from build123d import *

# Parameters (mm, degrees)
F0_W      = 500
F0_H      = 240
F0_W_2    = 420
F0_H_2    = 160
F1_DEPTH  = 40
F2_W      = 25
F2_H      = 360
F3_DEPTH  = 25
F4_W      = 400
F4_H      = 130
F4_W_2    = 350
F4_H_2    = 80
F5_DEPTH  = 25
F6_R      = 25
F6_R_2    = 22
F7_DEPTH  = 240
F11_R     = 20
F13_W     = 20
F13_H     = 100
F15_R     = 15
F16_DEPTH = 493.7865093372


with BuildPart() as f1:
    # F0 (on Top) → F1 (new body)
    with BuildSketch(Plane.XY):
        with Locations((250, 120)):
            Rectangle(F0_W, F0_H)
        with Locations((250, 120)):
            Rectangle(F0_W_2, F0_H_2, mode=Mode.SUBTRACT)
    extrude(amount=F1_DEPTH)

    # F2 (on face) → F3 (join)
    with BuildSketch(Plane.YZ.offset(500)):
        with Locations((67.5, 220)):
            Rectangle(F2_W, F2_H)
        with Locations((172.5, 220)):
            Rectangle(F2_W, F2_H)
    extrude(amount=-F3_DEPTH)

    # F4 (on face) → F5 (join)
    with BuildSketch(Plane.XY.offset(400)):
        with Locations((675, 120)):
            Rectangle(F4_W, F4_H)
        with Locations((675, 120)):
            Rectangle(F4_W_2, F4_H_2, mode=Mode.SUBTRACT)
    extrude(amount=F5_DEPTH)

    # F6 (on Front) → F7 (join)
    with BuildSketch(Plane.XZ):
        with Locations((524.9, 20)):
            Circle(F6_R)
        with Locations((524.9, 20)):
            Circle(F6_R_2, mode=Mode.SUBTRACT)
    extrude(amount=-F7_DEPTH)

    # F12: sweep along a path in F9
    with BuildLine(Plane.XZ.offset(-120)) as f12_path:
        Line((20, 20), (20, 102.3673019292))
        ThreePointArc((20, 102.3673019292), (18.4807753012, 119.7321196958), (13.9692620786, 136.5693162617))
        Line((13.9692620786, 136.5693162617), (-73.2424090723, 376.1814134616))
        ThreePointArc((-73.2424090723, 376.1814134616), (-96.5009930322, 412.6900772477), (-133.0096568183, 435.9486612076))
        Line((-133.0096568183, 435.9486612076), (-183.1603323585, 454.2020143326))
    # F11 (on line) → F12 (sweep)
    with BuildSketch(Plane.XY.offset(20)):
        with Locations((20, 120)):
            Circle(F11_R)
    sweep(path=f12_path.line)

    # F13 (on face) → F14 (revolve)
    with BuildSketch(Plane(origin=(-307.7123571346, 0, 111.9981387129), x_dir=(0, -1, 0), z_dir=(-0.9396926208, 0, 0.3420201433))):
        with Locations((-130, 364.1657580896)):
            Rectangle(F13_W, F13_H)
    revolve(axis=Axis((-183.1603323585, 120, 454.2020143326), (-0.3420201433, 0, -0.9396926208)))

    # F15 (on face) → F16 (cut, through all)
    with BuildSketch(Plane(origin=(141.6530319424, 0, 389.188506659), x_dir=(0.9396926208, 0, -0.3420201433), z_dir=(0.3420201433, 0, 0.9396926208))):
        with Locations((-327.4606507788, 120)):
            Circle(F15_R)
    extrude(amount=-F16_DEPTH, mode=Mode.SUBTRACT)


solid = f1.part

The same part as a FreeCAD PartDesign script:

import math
import FreeCAD as App
import Part
import Sketcher
from FreeCAD import Vector
Q = App.Units.Quantity

doc = App.newDocument("Part")
body = doc.addObject("PartDesign::Body", "Body")

sketch1 = doc.addObject("Sketcher::SketchObject", "Sketch")
body.addObject(sketch1)
sketch1.AttachmentSupport = (doc.XY_Plane, [""])
sketch1.MapMode = "FlatFace"
sketch1.addGeometry(Part.LineSegment(Vector(0, 240, 0), Vector(0, 0, 0)), False)
sketch1.addGeometry(Part.LineSegment(Vector(0, 0, 0), Vector(500, 0, 0)), False)
sketch1.addGeometry(Part.LineSegment(Vector(500, 0, 0), Vector(500, 240, 0)), False)
sketch1.addGeometry(Part.LineSegment(Vector(500, 240, 0), Vector(0, 240, 0)), False)
sketch1.addGeometry(Part.LineSegment(Vector(460, 40, 0), Vector(40, 40, 0)), False)
sketch1.addGeometry(Part.LineSegment(Vector(40, 40, 0), Vector(40, 200, 0)), False)
sketch1.addGeometry(Part.LineSegment(Vector(40, 200, 0), Vector(460, 200, 0)), False)
sketch1.addGeometry(Part.LineSegment(Vector(460, 200, 0), Vector(460, 40, 0)), False)
sketch1.addConstraint(Sketcher.Constraint("Coincident", 0, 2, 1, 1))
sketch1.addConstraint(Sketcher.Constraint("Coincident", 1, 2, 2, 1))
sketch1.addConstraint(Sketcher.Constraint("Coincident", 2, 2, 3, 1))
sketch1.addConstraint(Sketcher.Constraint("Coincident", 3, 2, 0, 1))
sketch1.addConstraint(Sketcher.Constraint("Coincident", 4, 2, 5, 1))
sketch1.addConstraint(Sketcher.Constraint("Coincident", 5, 2, 6, 1))
sketch1.addConstraint(Sketcher.Constraint("Coincident", 6, 2, 7, 1))
sketch1.addConstraint(Sketcher.Constraint("Coincident", 7, 2, 4, 1))
sketch1.addConstraint(Sketcher.Constraint("Vertical", 0))
sketch1.addConstraint(Sketcher.Constraint("Horizontal", 1))
sketch1.addConstraint(Sketcher.Constraint("Vertical", 2))
sketch1.addConstraint(Sketcher.Constraint("Horizontal", 3))
sketch1.addConstraint(Sketcher.Constraint("Horizontal", 4))
sketch1.addConstraint(Sketcher.Constraint("Vertical", 5))
sketch1.addConstraint(Sketcher.Constraint("Horizontal", 6))
sketch1.addConstraint(Sketcher.Constraint("Vertical", 7))
sketch1.addConstraint(Sketcher.Constraint("Coincident", 0, 2, -1, 1))
sketch1.addConstraint(Sketcher.Constraint("DistanceX", 1, 1, 1, 2, Q("500 mm")))
sketch1.addConstraint(Sketcher.Constraint("DistanceX", 4, 2, 4, 1, Q("420 mm")))
sketch1.addConstraint(Sketcher.Constraint("DistanceY", 0, 2, 0, 1, Q("240 mm")))
sketch1.addConstraint(Sketcher.Constraint("DistanceY", 5, 1, 5, 2, Q("160 mm")))
sketch1.addConstraint(Sketcher.Constraint("DistanceX", -1, 1, 4, 2, Q("40 mm")))
sketch1.addConstraint(Sketcher.Constraint("DistanceY", -1, 1, 4, 2, Q("40 mm")))
pad1 = doc.addObject("PartDesign::Pad", "Pad")
body.addObject(pad1)
pad1.Profile = sketch1
pad1.Length = 40

sketch2 = doc.addObject("Sketcher::SketchObject", "Sketch001")
body.addObject(sketch2)
sketch2.AttachmentSupport = (doc.YZ_Plane, [""])
sketch2.MapMode = "FlatFace"
sketch2.AttachmentOffset = App.Placement(Vector(0, 0, 500), App.Rotation())
sketch2.addGeometry(Part.LineSegment(Vector(55, 400, 0), Vector(55, 40, 0)), False)
sketch2.addGeometry(Part.LineSegment(Vector(55, 40, 0), Vector(80, 40, 0)), False)
sketch2.addGeometry(Part.LineSegment(Vector(80, 40, 0), Vector(80, 400, 0)), False)
sketch2.addGeometry(Part.LineSegment(Vector(80, 400, 0), Vector(55, 400, 0)), False)
sketch2.addGeometry(Part.LineSegment(Vector(160, 400, 0), Vector(160, 40, 0)), False)
sketch2.addGeometry(Part.LineSegment(Vector(160, 40, 0), Vector(185, 40, 0)), False)
sketch2.addGeometry(Part.LineSegment(Vector(185, 40, 0), Vector(185, 400, 0)), False)
sketch2.addGeometry(Part.LineSegment(Vector(185, 400, 0), Vector(160, 400, 0)), False)
sketch2.addConstraint(Sketcher.Constraint("Coincident", 0, 2, 1, 1))
sketch2.addConstraint(Sketcher.Constraint("Coincident", 1, 2, 2, 1))
sketch2.addConstraint(Sketcher.Constraint("Coincident", 2, 2, 3, 1))
sketch2.addConstraint(Sketcher.Constraint("Coincident", 3, 2, 0, 1))
sketch2.addConstraint(Sketcher.Constraint("Coincident", 4, 2, 5, 1))
sketch2.addConstraint(Sketcher.Constraint("Coincident", 5, 2, 6, 1))
sketch2.addConstraint(Sketcher.Constraint("Coincident", 6, 2, 7, 1))
sketch2.addConstraint(Sketcher.Constraint("Coincident", 7, 2, 4, 1))
sketch2.addConstraint(Sketcher.Constraint("Vertical", 0))
sketch2.addConstraint(Sketcher.Constraint("Horizontal", 1))
sketch2.addConstraint(Sketcher.Constraint("Vertical", 2))
sketch2.addConstraint(Sketcher.Constraint("Horizontal", 3))
sketch2.addConstraint(Sketcher.Constraint("Vertical", 4))
sketch2.addConstraint(Sketcher.Constraint("Horizontal", 5))
sketch2.addConstraint(Sketcher.Constraint("Vertical", 6))
sketch2.addConstraint(Sketcher.Constraint("Horizontal", 7))
sketch2.addConstraint(Sketcher.Constraint("Horizontal", 1, 2, 4, 2))
sketch2.addConstraint(Sketcher.Constraint("Horizontal", 3, 2, 6, 2))
sketch2.addConstraint(Sketcher.Constraint("Equal", 3, 5))
sketch2.addConstraint(Sketcher.Constraint("DistanceX", 1, 1, 1, 2, Q("25 mm")))
sketch2.addConstraint(Sketcher.Constraint("DistanceY", 0, 2, 0, 1, Q("360 mm")))
sketch2.addConstraint(Sketcher.Constraint("DistanceX", -1, 1, 0, 2, Q("55 mm")))
sketch2.addConstraint(Sketcher.Constraint("DistanceY", -1, 1, 0, 2, Q("40 mm")))
sketch2.addConstraint(Sketcher.Constraint("DistanceX", -1, 1, 4, 2, Q("160 mm")))
pad2 = doc.addObject("PartDesign::Pad", "Pad001")
body.addObject(pad2)
pad2.Profile = sketch2
pad2.Length = 25
pad2.Reversed = True

sketch3 = doc.addObject("Sketcher::SketchObject", "Sketch002")
body.addObject(sketch3)
sketch3.AttachmentSupport = (doc.XY_Plane, [""])
sketch3.MapMode = "FlatFace"
sketch3.AttachmentOffset = App.Placement(Vector(0, 0, 400), App.Rotation())
sketch3.addGeometry(Part.LineSegment(Vector(475, 185, 0), Vector(475, 55, 0)), False)
sketch3.addGeometry(Part.LineSegment(Vector(475, 55, 0), Vector(875, 55, 0)), False)
sketch3.addGeometry(Part.LineSegment(Vector(875, 55, 0), Vector(875, 185, 0)), False)
sketch3.addGeometry(Part.LineSegment(Vector(875, 185, 0), Vector(475, 185, 0)), False)
sketch3.addGeometry(Part.LineSegment(Vector(850, 80, 0), Vector(500, 80, 0)), False)
sketch3.addGeometry(Part.LineSegment(Vector(500, 80, 0), Vector(500, 160, 0)), False)
sketch3.addGeometry(Part.LineSegment(Vector(500, 160, 0), Vector(850, 160, 0)), False)
sketch3.addGeometry(Part.LineSegment(Vector(850, 160, 0), Vector(850, 80, 0)), False)
sketch3.addConstraint(Sketcher.Constraint("Coincident", 0, 2, 1, 1))
sketch3.addConstraint(Sketcher.Constraint("Coincident", 1, 2, 2, 1))
sketch3.addConstraint(Sketcher.Constraint("Coincident", 2, 2, 3, 1))
sketch3.addConstraint(Sketcher.Constraint("Coincident", 3, 2, 0, 1))
sketch3.addConstraint(Sketcher.Constraint("Coincident", 4, 2, 5, 1))
sketch3.addConstraint(Sketcher.Constraint("Coincident", 5, 2, 6, 1))
sketch3.addConstraint(Sketcher.Constraint("Coincident", 6, 2, 7, 1))
sketch3.addConstraint(Sketcher.Constraint("Coincident", 7, 2, 4, 1))
sketch3.addConstraint(Sketcher.Constraint("Vertical", 0))
sketch3.addConstraint(Sketcher.Constraint("Horizontal", 1))
sketch3.addConstraint(Sketcher.Constraint("Vertical", 2))
sketch3.addConstraint(Sketcher.Constraint("Horizontal", 3))
sketch3.addConstraint(Sketcher.Constraint("Horizontal", 4))
sketch3.addConstraint(Sketcher.Constraint("Vertical", 5))
sketch3.addConstraint(Sketcher.Constraint("Horizontal", 6))
sketch3.addConstraint(Sketcher.Constraint("Vertical", 7))
sketch3.addConstraint(Sketcher.Constraint("DistanceX", 1, 1, 1, 2, Q("400 mm")))
sketch3.addConstraint(Sketcher.Constraint("DistanceX", 4, 2, 4, 1, Q("350 mm")))
sketch3.addConstraint(Sketcher.Constraint("DistanceY", 0, 2, 0, 1, Q("130 mm")))
sketch3.addConstraint(Sketcher.Constraint("DistanceY", 5, 1, 5, 2, Q("80 mm")))
sketch3.addConstraint(Sketcher.Constraint("DistanceX", -1, 1, 0, 2, Q("475 mm")))
sketch3.addConstraint(Sketcher.Constraint("DistanceY", -1, 1, 0, 2, Q("55 mm")))
sketch3.addConstraint(Sketcher.Constraint("DistanceX", -1, 1, 4, 2, Q("500 mm")))
sketch3.addConstraint(Sketcher.Constraint("DistanceY", -1, 1, 4, 2, Q("80 mm")))
pad3 = doc.addObject("PartDesign::Pad", "Pad002")
body.addObject(pad3)
pad3.Profile = sketch3
pad3.Length = 25

sketch4 = doc.addObject("Sketcher::SketchObject", "Sketch003")
body.addObject(sketch4)
sketch4.AttachmentSupport = (doc.XZ_Plane, [""])
sketch4.MapMode = "FlatFace"
sketch4.addGeometry(Part.Circle(Vector(525, 20, 0), Vector(0, 0, 1), 25), False)
sketch4.addGeometry(Part.Circle(Vector(525, 20, 0), Vector(0, 0, 1), 22), False)
sketch4.addConstraint(Sketcher.Constraint("Coincident", 1, 3, 0, 3))
sketch4.addConstraint(Sketcher.Constraint("Diameter", 0, Q("50 mm")))
sketch4.addConstraint(Sketcher.Constraint("Diameter", 1, Q("44 mm")))
sketch4.addConstraint(Sketcher.Constraint("DistanceY", -1, 1, 0, 3, Q("20 mm")))
sketch4.addConstraint(Sketcher.Constraint("DistanceX", -1, 1, 0, 3, Q("524.9 mm")))
pad4 = doc.addObject("PartDesign::Pad", "Pad003")
body.addObject(pad4)
pad4.Profile = sketch4
pad4.Length = 240
pad4.Reversed = True

sketch5 = doc.addObject("Sketcher::SketchObject", "Sketch004")
body.addObject(sketch5)
sketch5.AttachmentSupport = (doc.XY_Plane, [""])
sketch5.MapMode = "FlatFace"
sketch5.AttachmentOffset = App.Placement(Vector(0, 0, 20), App.Rotation())
sketch5.addGeometry(Part.Circle(Vector(20, 120, 0), Vector(0, 0, 1), 20), False)
sketch5.addConstraint(Sketcher.Constraint("Diameter", 0, Q("40 mm")))
sketch5.addConstraint(Sketcher.Constraint("DistanceX", -1, 1, 0, 3, Q("20 mm")))
sketch5.addConstraint(Sketcher.Constraint("DistanceY", -1, 1, 0, 3, Q("120 mm")))

sketch6 = doc.addObject("Sketcher::SketchObject", "Sketch005")
body.addObject(sketch6)
sketch6.AttachmentSupport = (doc.XZ_Plane, [""])
sketch6.MapMode = "FlatFace"
sketch6.AttachmentOffset = App.Placement(Vector(0, 0, -120), App.Rotation())
sketch6.addGeometry(Part.LineSegment(Vector(20, 20, 0), Vector(20, 102, 0)), False)
sketch6.addGeometry(Part.ArcOfCircle(Part.Circle(Vector(-80, 102, 0), Vector(0, 0, 1), 100), math.radians(0), math.radians(20)), False)
sketch6.addGeometry(Part.LineSegment(Vector(14, 137, 0), Vector(-73, 376, 0)), False)
sketch6.addGeometry(Part.ArcOfCircle(Part.Circle(Vector(-167, 342, 0), Vector(0, 0, 1), 100), math.radians(20), math.radians(70)), False)
sketch6.addGeometry(Part.LineSegment(Vector(-133, 436, 0), Vector(-183, 454, 0)), False)
sketch6.addConstraint(Sketcher.Constraint("Tangent", 0, 2, 1, 1))
sketch6.addConstraint(Sketcher.Constraint("Tangent", 1, 2, 2, 1))
sketch6.addConstraint(Sketcher.Constraint("Tangent", 2, 2, 3, 1))
sketch6.addConstraint(Sketcher.Constraint("Tangent", 3, 2, 4, 1))
sketch6.addConstraint(Sketcher.Constraint("Vertical", 0))
sketch6.addConstraint(Sketcher.Constraint("Equal", 1, 3))
sketch6.addConstraint(Sketcher.Constraint("Radius", 1, Q("100 mm")))
sketch6.addConstraint(Sketcher.Constraint("Angle", 2, Q("110 deg")))
sketch6.addConstraint(Sketcher.Constraint("Angle", 4, Q("160 deg")))
sketch6.addConstraint(Sketcher.Constraint("DistanceX", 1, 3, -1, 1, Q("80 mm")))
sketch6.addConstraint(Sketcher.Constraint("DistanceY", -1, 1, 0, 1, Q("20 mm")))
sketch6.addConstraint(Sketcher.Constraint("DistanceY", 0, 1, 0, 2, Q("82.367302 mm")))
sketch6.addConstraint(Sketcher.Constraint("DistanceY", -1, 1, 3, 3, Q("341.979399 mm")))
sketch6.addConstraint(Sketcher.Constraint("DistanceY", 2, 2, 4, 2, Q("78.020601 mm")))
doc.recompute()

additivepipe = doc.addObject("PartDesign::AdditivePipe", "AdditivePipe")
body.addObject(additivepipe)
additivepipe.Profile = sketch5
additivepipe.Spine = (sketch6, ["Edge1", "Edge2", "Edge3", "Edge4", "Edge5"])

sketch7 = doc.addObject("Sketcher::SketchObject", "Sketch006")
body.addObject(sketch7)
sketch7.Placement = App.Placement(Vector(-307.712357, 0, 111.998139), App.Rotation(Vector(0, -1, 0), Vector(0.342020143, 0, 0.939692621), Vector(-0.939692621, 0, 0.342020143), "ZXY"))
sketch7.addGeometry(Part.LineSegment(Vector(-140, 414, 0), Vector(-140, 314, 0)), False)
sketch7.addGeometry(Part.LineSegment(Vector(-140, 314, 0), Vector(-120, 314, 0)), False)
sketch7.addGeometry(Part.LineSegment(Vector(-120, 314, 0), Vector(-120, 414, 0)), False)
sketch7.addGeometry(Part.LineSegment(Vector(-120, 414, 0), Vector(-140, 414, 0)), False)
sketch7.addGeometry(Part.LineSegment(Vector(-120, 414, 0), Vector(-120, 314, 0)), True)
sketch7.addConstraint(Sketcher.Constraint("Coincident", 0, 2, 1, 1))
sketch7.addConstraint(Sketcher.Constraint("Coincident", 1, 2, 2, 1))
sketch7.addConstraint(Sketcher.Constraint("Coincident", 2, 2, 3, 1))
sketch7.addConstraint(Sketcher.Constraint("Coincident", 3, 2, 0, 1))
sketch7.addConstraint(Sketcher.Constraint("Vertical", 0))
sketch7.addConstraint(Sketcher.Constraint("Horizontal", 1))
sketch7.addConstraint(Sketcher.Constraint("Vertical", 2))
sketch7.addConstraint(Sketcher.Constraint("Horizontal", 3))
sketch7.addConstraint(Sketcher.Constraint("Vertical", 4))
sketch7.addConstraint(Sketcher.Constraint("Coincident", 4, 1, 2, 2))
sketch7.addConstraint(Sketcher.Constraint("Horizontal", 0, 2, 4, 2))
sketch7.addConstraint(Sketcher.Constraint("DistanceX", 1, 1, 1, 2, Q("20 mm")))
sketch7.addConstraint(Sketcher.Constraint("DistanceY", 0, 2, 0, 1, Q("100 mm")))
sketch7.addConstraint(Sketcher.Constraint("DistanceX", 0, 2, -1, 1, Q("140 mm")))
sketch7.addConstraint(Sketcher.Constraint("DistanceY", -1, 1, 0, 2, Q("314.165758 mm")))
revolution = doc.addObject("PartDesign::Revolution", "Revolution")
body.addObject(revolution)
revolution.Profile = sketch7
revolution.ReferenceAxis = (sketch7, ["Axis0"])
revolution.Angle = 360

sketch8 = doc.addObject("Sketcher::SketchObject", "Sketch007")
body.addObject(sketch8)
sketch8.Placement = App.Placement(Vector(141.653032, 0, 389.188507), App.Rotation(Vector(0.939692621, 0, -0.342020143), Vector(0, 1, 0), Vector(0.342020143, 0, 0.939692621), "ZXY"))
sketch8.addGeometry(Part.Circle(Vector(-327, 120, 0), Vector(0, 0, 1), 15), False)
sketch8.addConstraint(Sketcher.Constraint("Diameter", 0, Q("30 mm")))
sketch8.addConstraint(Sketcher.Constraint("DistanceY", -1, 1, 0, 3, Q("120 mm")))
sketch8.addConstraint(Sketcher.Constraint("DistanceX", 0, 3, -1, 1, Q("327.460651 mm")))
pocket1 = doc.addObject("PartDesign::Pocket", "Pocket")
body.addObject(pocket1)
pocket1.Profile = sketch8
pocket1.Type = "ThroughAll"

doc.recompute()
